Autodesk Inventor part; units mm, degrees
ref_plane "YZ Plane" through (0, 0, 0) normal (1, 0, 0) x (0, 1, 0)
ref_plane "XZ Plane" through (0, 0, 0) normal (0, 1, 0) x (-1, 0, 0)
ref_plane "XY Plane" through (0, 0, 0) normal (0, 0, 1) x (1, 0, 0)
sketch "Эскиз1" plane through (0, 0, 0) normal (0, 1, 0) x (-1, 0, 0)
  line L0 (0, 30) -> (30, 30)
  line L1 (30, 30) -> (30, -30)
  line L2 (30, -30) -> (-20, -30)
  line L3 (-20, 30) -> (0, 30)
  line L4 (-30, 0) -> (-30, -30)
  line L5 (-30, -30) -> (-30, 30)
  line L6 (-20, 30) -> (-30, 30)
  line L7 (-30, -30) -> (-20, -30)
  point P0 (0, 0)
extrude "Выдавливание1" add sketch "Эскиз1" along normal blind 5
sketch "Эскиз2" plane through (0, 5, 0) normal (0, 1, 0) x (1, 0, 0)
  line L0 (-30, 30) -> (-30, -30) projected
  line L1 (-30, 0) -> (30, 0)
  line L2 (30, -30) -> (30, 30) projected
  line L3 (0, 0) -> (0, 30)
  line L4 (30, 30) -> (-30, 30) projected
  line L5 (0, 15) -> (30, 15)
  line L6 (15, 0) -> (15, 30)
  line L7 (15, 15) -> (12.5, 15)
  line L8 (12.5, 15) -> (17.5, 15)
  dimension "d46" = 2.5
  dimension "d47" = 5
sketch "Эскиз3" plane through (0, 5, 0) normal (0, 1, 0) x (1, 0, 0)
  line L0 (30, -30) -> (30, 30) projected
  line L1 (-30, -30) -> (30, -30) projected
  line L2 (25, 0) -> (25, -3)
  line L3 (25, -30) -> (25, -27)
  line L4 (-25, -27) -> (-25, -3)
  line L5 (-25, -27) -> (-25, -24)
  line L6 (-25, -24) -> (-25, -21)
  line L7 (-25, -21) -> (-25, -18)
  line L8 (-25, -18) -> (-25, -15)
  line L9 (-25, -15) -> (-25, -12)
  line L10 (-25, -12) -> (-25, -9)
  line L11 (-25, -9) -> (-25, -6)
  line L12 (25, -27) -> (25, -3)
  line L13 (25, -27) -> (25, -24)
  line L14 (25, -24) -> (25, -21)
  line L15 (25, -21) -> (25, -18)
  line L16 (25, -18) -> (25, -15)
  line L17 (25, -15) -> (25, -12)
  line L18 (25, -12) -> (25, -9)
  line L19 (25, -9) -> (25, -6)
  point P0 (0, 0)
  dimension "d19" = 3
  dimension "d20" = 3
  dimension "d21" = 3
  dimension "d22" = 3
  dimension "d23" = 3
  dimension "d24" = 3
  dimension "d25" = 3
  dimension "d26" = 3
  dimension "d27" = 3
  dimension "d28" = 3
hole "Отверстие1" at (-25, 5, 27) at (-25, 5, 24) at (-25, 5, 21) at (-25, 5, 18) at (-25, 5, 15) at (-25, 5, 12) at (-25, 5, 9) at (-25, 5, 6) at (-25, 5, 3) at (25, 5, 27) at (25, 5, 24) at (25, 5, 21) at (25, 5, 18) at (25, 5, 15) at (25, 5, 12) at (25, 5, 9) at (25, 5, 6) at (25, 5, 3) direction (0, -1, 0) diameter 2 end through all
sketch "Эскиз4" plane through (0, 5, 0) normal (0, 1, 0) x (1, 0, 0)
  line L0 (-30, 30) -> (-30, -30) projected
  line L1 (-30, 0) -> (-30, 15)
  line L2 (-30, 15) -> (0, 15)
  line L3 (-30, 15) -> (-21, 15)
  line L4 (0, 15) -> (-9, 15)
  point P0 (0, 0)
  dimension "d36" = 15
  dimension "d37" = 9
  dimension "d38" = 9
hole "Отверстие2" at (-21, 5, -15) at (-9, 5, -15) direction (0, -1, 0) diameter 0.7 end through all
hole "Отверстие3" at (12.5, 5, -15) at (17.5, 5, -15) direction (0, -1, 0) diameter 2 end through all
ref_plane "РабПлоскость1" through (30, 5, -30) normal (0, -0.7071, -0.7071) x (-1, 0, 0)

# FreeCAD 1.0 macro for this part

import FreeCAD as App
import Part
import Sketcher

V = App.Vector
Q = App.Units.Quantity

doc = App.newDocument("Part")
params = doc.addObject("Spreadsheet::Sheet", "Params")
for row, (alias, value) in enumerate([
    ("sketch1_width", "60 mm"),
    ("pad1_length", "5 mm"),
    ("sketch2_diameter", "2 mm"),
    ("hole_diameter", "2 mm"),
    ("sketch3_diameter", "0.7 mm"),
    ("hole2_diameter", "0.7 mm"),
    ("sketch4_diameter", "2 mm"),
    ("hole3_diameter", "2 mm"),
], start=1):
    params.set(f"A{row}", alias)
    params.set(f"B{row}", "=" + value)
    params.setAlias(f"B{row}", alias)

body = doc.addObject("PartDesign::Body", "Body")

# Sketch on XZ plane
sketch1 = body.newObject("Sketcher::SketchObject", "Sketch")
sketch1.AttachmentSupport = (doc.getObject("XZ_Plane"), [""])
sketch1.MapMode = "FlatFace"
sketch1.addGeometry(Part.LineSegment(V(-30, 30, 0), V(30, 30, 0)), False)
sketch1.addGeometry(Part.LineSegment(V(30, 30, 0), V(30, -30, 0)), False)
sketch1.addGeometry(Part.LineSegment(V(30, -30, 0), V(-30, -30, 0)), False)
sketch1.addGeometry(Part.LineSegment(V(-30, -30, 0), V(-30, 30, 0)), False)
sketch1.addConstraint(Sketcher.Constraint("Coincident", 0, 2, 1, 1))
sketch1.addConstraint(Sketcher.Constraint("Coincident", 1, 2, 2, 1))
sketch1.addConstraint(Sketcher.Constraint("Coincident", 2, 2, 3, 1))
sketch1.addConstraint(Sketcher.Constraint("Coincident", 3, 2, 0, 1))
sketch1.addConstraint(Sketcher.Constraint("Horizontal", 0))
sketch1.addConstraint(Sketcher.Constraint("Vertical", 1))
sketch1.addConstraint(Sketcher.Constraint("Horizontal", 2))
sketch1.addConstraint(Sketcher.Constraint("Vertical", 3))
sketch1.addConstraint(Sketcher.Constraint("Symmetric", 0, 2, 2, 2, -1, 1))
sketch1.addConstraint(Sketcher.Constraint("Equal", 2, 1))
sketch1.addConstraint(Sketcher.Constraint("DistanceX", 0, 1, 0, 2, Q("60 mm")))
sketch1.setExpression("Constraints[10]", "Params.sketch1_width")
pad1 = body.newObject("PartDesign::Pad", "Pad")
pad1.Profile = sketch1
pad1.setExpression("Length", "Params.pad1_length")
pad1.Reversed = True

# Sketch on XZ plane
sketch2 = body.newObject("Sketcher::SketchObject", "Sketch001")
sketch2.AttachmentSupport = (doc.getObject("XZ_Plane"), [""])
sketch2.MapMode = "FlatFace"
sketch2.AttachmentOffset = App.Placement(V(0, 0, -5), App.Rotation())
sketch2.addGeometry(Part.Circle(V(-25, 27, 0), V(0, 0, 1), 1), False)
sketch2.addGeometry(Part.Circle(V(-25, 24, 0), V(0, 0, 1), 1), False)
sketch2.addGeometry(Part.Circle(V(-25, 21, 0), V(0, 0, 1), 1), False)
sketch2.addGeometry(Part.Circle(V(-25, 18, 0), V(0, 0, 1), 1), False)
sketch2.addGeometry(Part.Circle(V(-25, 15, 0), V(0, 0, 1), 1), False)
sketch2.addGeometry(Part.Circle(V(-25, 12, 0), V(0, 0, 1), 1), False)
sketch2.addGeometry(Part.Circle(V(-25, 9, 0), V(0, 0, 1), 1), False)
sketch2.addGeometry(Part.Circle(V(-25, 6, 0), V(0, 0, 1), 1), False)
sketch2.addGeometry(Part.Circle(V(-25, 3, 0), V(0, 0, 1), 1), False)
sketch2.addGeometry(Part.Circle(V(25, 27, 0), V(0, 0, 1), 1), False)
sketch2.addGeometry(Part.Circle(V(25, 24, 0), V(0, 0, 1), 1), False)
sketch2.addGeometry(Part.Circle(V(25, 21, 0), V(0, 0, 1), 1), False)
sketch2.addGeometry(Part.Circle(V(25, 18, 0), V(0, 0, 1), 1), False)
sketch2.addGeometry(Part.Circle(V(25, 15, 0), V(0, 0, 1), 1), False)
sketch2.addGeometry(Part.Circle(V(25, 12, 0), V(0, 0, 1), 1), False)
sketch2.addGeometry(Part.Circle(V(25, 9, 0), V(0, 0, 1), 1), False)
sketch2.addGeometry(Part.Circle(V(25, 6, 0), V(0, 0, 1), 1), False)
sketch2.addGeometry(Part.Circle(V(25, 3, 0), V(0, 0, 1), 1), False)
sketch2.addConstraint(Sketcher.Constraint("Equal", 0, 1))
sketch2.addConstraint(Sketcher.Constraint("Equal", 1, 2))
sketch2.addConstraint(Sketcher.Constraint("Equal", 2, 3))
sketch2.addConstraint(Sketcher.Constraint("Equal", 3, 4))
sketch2.addConstraint(Sketcher.Constraint("Equal", 4, 5))
sketch2.addConstraint(Sketcher.Constraint("Equal", 5, 6))
sketch2.addConstraint(Sketcher.Constraint("Equal", 6, 7))
sketch2.addConstraint(Sketcher.Constraint("Equal", 7, 8))
sketch2.addConstraint(Sketcher.Constraint("Equal", 8, 9))
sketch2.addConstraint(Sketcher.Constraint("Equal", 9, 10))
sketch2.addConstraint(Sketcher.Constraint("Equal", 10, 11))
sketch2.addConstraint(Sketcher.Constraint("Equal", 11, 12))
sketch2.addConstraint(Sketcher.Constraint("Equal", 12, 13))
sketch2.addConstraint(Sketcher.Constraint("Equal", 13, 14))
sketch2.addConstraint(Sketcher.Constraint("Equal", 14, 15))
sketch2.addConstraint(Sketcher.Constraint("Equal", 15, 16))
sketch2.addConstraint(Sketcher.Constraint("Equal", 16, 17))
sketch2.addConstraint(Sketcher.Constraint("Symmetric", 0, 3, 9, 3, -2))
sketch2.addConstraint(Sketcher.Constraint("Symmetric", 1, 3, 10, 3, -2))
sketch2.addConstraint(Sketcher.Constraint("Symmetric", 2, 3, 11, 3, -2))
sketch2.addConstraint(Sketcher.Constraint("Symmetric", 3, 3, 12, 3, -2))
sketch2.addConstraint(Sketcher.Constraint("Symmetric", 4, 3, 13, 3, -2))
sketch2.addConstraint(Sketcher.Constraint("Symmetric", 5, 3, 14, 3, -2))
sketch2.addConstraint(Sketcher.Constraint("Symmetric", 6, 3, 15, 3, -2))
sketch2.addConstraint(Sketcher.Constraint("Symmetric", 7, 3, 16, 3, -2))
sketch2.addConstraint(Sketcher.Constraint("Symmetric", 8, 3, 17, 3, -2))
sketch2.addConstraint(Sketcher.Constraint("Vertical", 0, 3, 1, 3))
sketch2.addConstraint(Sketcher.Constraint("Vertical", 1, 3, 2, 3))
sketch2.addConstraint(Sketcher.Constraint("Vertical", 2, 3, 3, 3))
sketch2.addConstraint(Sketcher.Constraint("Vertical", 3, 3, 4, 3))
sketch2.addConstraint(Sketcher.Constraint("Vertical", 4, 3, 5, 3))
sketch2.addConstraint(Sketcher.Constraint("Vertical", 5, 3, 6, 3))
sketch2.addConstraint(Sketcher.Constraint("Vertical", 6, 3, 7, 3))
sketch2.addConstraint(Sketcher.Constraint("Vertical", 7, 3, 8, 3))
sketch2.addConstraint(Sketcher.Constraint("Diameter", 0, Q("2 mm")))
sketch2.addConstraint(Sketcher.Constraint("DistanceX", 0, 3, -1, 1, Q("25 mm")))
sketch2.addConstraint(Sketcher.Constraint("DistanceY", -1, 1, 0, 3, Q("27 mm")))
sketch2.addConstraint(Sketcher.Constraint("DistanceY", -1, 1, 1, 3, Q("24 mm")))
sketch2.addConstraint(Sketcher.Constraint("DistanceY", -1, 1, 2, 3, Q("21 mm")))
sketch2.addConstraint(Sketcher.Constraint("DistanceY", -1, 1, 3, 3, Q("18 mm")))
sketch2.addConstraint(Sketcher.Constraint("DistanceY", -1, 1, 4, 3, Q("15 mm")))
sketch2.addConstraint(Sketcher.Constraint("DistanceY", -1, 1, 5, 3, Q("12 mm")))
sketch2.addConstraint(Sketcher.Constraint("DistanceY", -1, 1, 6, 3, Q("9 mm")))
sketch2.addConstraint(Sketcher.Constraint("DistanceY", -1, 1, 7, 3, Q("6 mm")))
sketch2.addConstraint(Sketcher.Constraint("DistanceY", -1, 1, 8, 3, Q("3 mm")))
sketch2.setExpression("Constraints[34]", "Params.sketch2_diameter")
doc.recompute()
hole = body.newObject("PartDesign::Hole", "Hole")
hole.Profile = sketch2
hole.ThreadType = "None"
hole.setExpression("Diameter", "Params.hole_diameter")
hole.DepthType = "ThroughAll"
hole.Reversed = True

# Sketch on XZ plane
sketch3 = body.newObject("Sketcher::SketchObject", "Sketch002")
sketch3.AttachmentSupport = (doc.getObject("XZ_Plane"), [""])
sketch3.MapMode = "FlatFace"
sketch3.AttachmentOffset = App.Placement(V(0, 0, -5), App.Rotation())
sketch3.addGeometry(Part.Circle(V(-21, -15, 0), V(0, 0, 1), 0.35), False)
sketch3.addGeometry(Part.Circle(V(-9, -15, 0), V(0, 0, 1), 0.35), False)
sketch3.addConstraint(Sketcher.Constraint("Equal", 0, 1))
sketch3.addConstraint(Sketcher.Constraint("Horizontal", 0, 3, 1, 3))
sketch3.addConstraint(Sketcher.Constraint("Diameter", 0, Q("0.7 mm")))
sketch3.addConstraint(Sketcher.Constraint("DistanceX", 0, 3, -1, 1, Q("21 mm")))
sketch3.addConstraint(Sketcher.Constraint("DistanceY", 0, 3, -1, 1, Q("15 mm")))
sketch3.addConstraint(Sketcher.Constraint("DistanceX", 1, 3, -1, 1, Q("9 mm")))
sketch3.setExpression("Constraints[2]", "Params.sketch3_diameter")
doc.recompute()
hole2 = body.newObject("PartDesign::Hole", "Hole001")
hole2.Profile = sketch3
hole2.ThreadType = "None"
hole2.setExpression("Diameter", "Params.hole2_diameter")
hole2.DepthType = "ThroughAll"
hole2.Reversed = True

# Sketch on XZ plane
sketch4 = body.newObject("Sketcher::SketchObject", "Sketch003")
sketch4.AttachmentSupport = (doc.getObject("XZ_Plane"), [""])
sketch4.MapMode = "FlatFace"
sketch4.AttachmentOffset = App.Placement(V(0, 0, -5), App.Rotation())
sketch4.addGeometry(Part.Circle(V(12.5, -15, 0), V(0, 0, 1), 1), False)
sketch4.addGeometry(Part.Circle(V(17.5, -15, 0), V(0, 0, 1), 1), False)
sketch4.addConstraint(Sketcher.Constraint("Equal", 0, 1))
sketch4.addConstraint(Sketcher.Constraint("Horizontal", 0, 3, 1, 3))
sketch4.addConstraint(Sketcher.Constraint("Diameter", 0, Q("2 mm")))
sketch4.addConstraint(Sketcher.Constraint("DistanceY", 0, 3, -1, 1, Q("15 mm")))
sketch4.addConstraint(Sketcher.Constraint("DistanceX", 0, 3, 1, 3, Q("5 mm")))
sketch4.addConstraint(Sketcher.Constraint("DistanceX", -1, 1, 0, 3, Q("12.5 mm")))
sketch4.setExpression("Constraints[2]", "Params.sketch4_diameter")
doc.recompute()
hole3 = body.newObject("PartDesign::Hole", "Hole002")
hole3.Profile = sketch4
hole3.ThreadType = "None"
hole3.setExpression("Diameter", "Params.hole3_diameter")
hole3.DepthType = "ThroughAll"
hole3.Reversed = True

doc.recompute()
